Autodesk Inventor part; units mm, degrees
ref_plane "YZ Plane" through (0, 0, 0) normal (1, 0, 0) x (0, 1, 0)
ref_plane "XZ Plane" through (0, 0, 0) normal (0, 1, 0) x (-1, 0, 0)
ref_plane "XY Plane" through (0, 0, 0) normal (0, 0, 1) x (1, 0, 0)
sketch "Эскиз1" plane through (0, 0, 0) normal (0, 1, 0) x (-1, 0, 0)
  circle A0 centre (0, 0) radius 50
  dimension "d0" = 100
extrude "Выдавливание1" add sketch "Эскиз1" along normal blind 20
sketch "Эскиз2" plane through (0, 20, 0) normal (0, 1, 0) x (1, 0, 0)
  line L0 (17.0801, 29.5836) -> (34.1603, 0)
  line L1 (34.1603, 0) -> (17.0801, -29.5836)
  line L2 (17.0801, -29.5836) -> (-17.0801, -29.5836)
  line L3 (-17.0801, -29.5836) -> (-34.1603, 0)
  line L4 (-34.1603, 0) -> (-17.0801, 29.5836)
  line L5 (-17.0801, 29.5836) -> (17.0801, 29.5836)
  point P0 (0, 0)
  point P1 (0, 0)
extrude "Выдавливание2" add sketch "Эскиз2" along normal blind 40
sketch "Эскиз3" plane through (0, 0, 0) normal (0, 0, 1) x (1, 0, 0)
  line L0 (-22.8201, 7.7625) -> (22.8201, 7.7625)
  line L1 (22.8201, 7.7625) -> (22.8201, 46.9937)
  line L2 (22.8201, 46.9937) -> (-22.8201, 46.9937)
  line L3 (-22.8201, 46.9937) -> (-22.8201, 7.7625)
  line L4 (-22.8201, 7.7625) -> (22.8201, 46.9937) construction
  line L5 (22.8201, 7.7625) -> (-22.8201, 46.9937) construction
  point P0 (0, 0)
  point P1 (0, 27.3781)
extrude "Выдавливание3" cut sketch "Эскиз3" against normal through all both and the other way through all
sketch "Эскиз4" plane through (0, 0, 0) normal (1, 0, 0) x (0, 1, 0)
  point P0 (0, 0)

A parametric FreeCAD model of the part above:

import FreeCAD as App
import Part
import Sketcher
Q = App.Units.Quantity

doc = App.newDocument("Part")
body = doc.addObject("PartDesign::Body", "Body")

# Sketch on XZ plane
sketch1 = body.newObject("Sketcher::SketchObject", "Sketch")
sketch1.AttachmentSupport = (doc.getObject("XZ_Plane"), [""])
sketch1.MapMode = "FlatFace"
sketch1.addGeometry(Part.Circle(App.Vector(0, 0, 0), App.Vector(0, 0, 1), 50), False)
sketch1.addConstraint([
    Sketcher.Constraint("Coincident", 0, 3, -1, 1),
    Sketcher.Constraint("Diameter", 0, Q("100 mm")),
])
pad1 = body.newObject("PartDesign::Pad", "Pad")
pad1.Profile = sketch1
pad1.Length = 20
pad1.Reversed = True

# Sketch on XZ plane
sketch2 = body.newObject("Sketcher::SketchObject", "Sketch001")
sketch2.AttachmentSupport = (doc.getObject("XZ_Plane"), [""])
sketch2.MapMode = "FlatFace"
sketch2.AttachmentOffset = App.Placement(App.Vector(0, 0, -20), App.Rotation())
sketch2.addGeometry([
    Part.LineSegment(App.Vector(34, 0, 0), App.Vector(17, -30, 0)),  # 0
    Part.LineSegment(App.Vector(17, -30, 0), App.Vector(-17, -30, 0)),  # 1
    Part.LineSegment(App.Vector(-17, -30, 0), App.Vector(-34, 0, 0)),  # 2
    Part.LineSegment(App.Vector(-34, 0, 0), App.Vector(-17, 30, 0)),  # 3
    Part.LineSegment(App.Vector(-17, 30, 0), App.Vector(17, 30, 0)),  # 4
    Part.LineSegment(App.Vector(17, 30, 0), App.Vector(34, 0, 0)),  # 5
], False)
sketch2.addConstraint([
    Sketcher.Constraint("Coincident", 0, 2, 1, 1),
    Sketcher.Constraint("Coincident", 1, 2, 2, 1),
    Sketcher.Constraint("Coincident", 2, 2, 3, 1),
    Sketcher.Constraint("Coincident", 3, 2, 4, 1),
    Sketcher.Constraint("Coincident", 4, 2, 5, 1),
    Sketcher.Constraint("Coincident", 5, 2, 0, 1),
    Sketcher.Constraint("Horizontal", 1),
    Sketcher.Constraint("Horizontal", 4),
    Sketcher.Constraint("Symmetric", 0, 2, 3, 2, -1, 1),
    Sketcher.Constraint("Symmetric", 2, 2, 5, 2, -1, 1),
    Sketcher.Constraint("PointOnObject", 2, 2, -1),
    Sketcher.Constraint("Parallel", 2, 5),
    Sketcher.Constraint("Vertical", 1, 2, 3, 2),
    Sketcher.Constraint("Angle", 0, Q("-120.0001 deg")),
    Sketcher.Constraint("DistanceX", -1, 1, 0, 2, Q("17.08 mm")),
    Sketcher.Constraint("Distance", 0, Q("34.1602 mm")),
])
pad2 = body.newObject("PartDesign::Pad", "Pad001")
pad2.Profile = sketch2
pad2.Length = 40
pad2.Reversed = True

# Sketch on XY plane
sketch3 = body.newObject("Sketcher::SketchObject", "Sketch002")
sketch3.AttachmentSupport = (doc.getObject("XY_Plane"), [""])
sketch3.MapMode = "FlatFace"
sketch3.addGeometry([
    Part.LineSegment(App.Vector(-23, 47, 0), App.Vector(-23, 8, 0)),
    Part.LineSegment(App.Vector(-23, 8, 0), App.Vector(23, 8, 0)),
    Part.LineSegment(App.Vector(23, 8, 0), App.Vector(23, 47, 0)),
    Part.LineSegment(App.Vector(23, 47, 0), App.Vector(-23, 47, 0)),
], False)
sketch3.addConstraint([
    Sketcher.Constraint("Coincident", 0, 2, 1, 1),
    Sketcher.Constraint("Coincident", 1, 2, 2, 1),
    Sketcher.Constraint("Coincident", 2, 2, 3, 1),
    Sketcher.Constraint("Coincident", 3, 2, 0, 1),
    Sketcher.Constraint("Vertical", 0),
    Sketcher.Constraint("Horizontal", 1),
    Sketcher.Constraint("Vertical", 2),
    Sketcher.Constraint("Horizontal", 3),
    Sketcher.Constraint("DistanceX", 0, 2, -1, 1, Q("22.82 mm")),
    Sketcher.Constraint("DistanceX", -1, 1, 1, 2, Q("22.82 mm")),
    Sketcher.Constraint("DistanceY", 0, 2, 0, 1, Q("39.2312 mm")),
    Sketcher.Constraint("DistanceY", -1, 1, 0, 2, Q("7.7625 mm")),
])
pocket1 = body.newObject("PartDesign::Pocket", "Pocket")
pocket1.Profile = sketch3
pocket1.Type = "ThroughAll"
pocket1.Midplane = True

doc.recompute()
